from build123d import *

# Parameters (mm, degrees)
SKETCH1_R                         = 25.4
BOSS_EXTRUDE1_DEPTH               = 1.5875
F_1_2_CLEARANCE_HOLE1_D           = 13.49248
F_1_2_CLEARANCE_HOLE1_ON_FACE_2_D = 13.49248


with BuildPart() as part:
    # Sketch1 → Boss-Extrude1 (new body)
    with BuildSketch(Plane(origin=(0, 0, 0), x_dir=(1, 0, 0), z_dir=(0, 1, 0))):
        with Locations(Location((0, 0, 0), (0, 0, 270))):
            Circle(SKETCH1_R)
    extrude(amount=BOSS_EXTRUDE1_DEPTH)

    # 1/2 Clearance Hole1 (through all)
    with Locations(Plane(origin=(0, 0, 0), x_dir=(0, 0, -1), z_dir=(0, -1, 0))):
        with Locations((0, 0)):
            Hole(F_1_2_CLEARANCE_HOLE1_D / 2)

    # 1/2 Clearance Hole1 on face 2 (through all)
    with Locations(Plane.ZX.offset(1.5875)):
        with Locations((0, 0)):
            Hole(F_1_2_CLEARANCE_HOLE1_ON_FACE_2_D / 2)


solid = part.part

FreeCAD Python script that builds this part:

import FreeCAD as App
import Part
import Sketcher

V = App.Vector
Q = App.Units.Quantity

doc = App.newDocument("Part")
body = doc.addObject("PartDesign::Body", "Body")

# Sketch on XZ plane
sketch1 = body.newObject("Sketcher::SketchObject", "Sketch")
sketch1.AttachmentSupport = (doc.getObject("XZ_Plane"), [""])
sketch1.MapMode = "FlatFace"
sketch1.addGeometry(Part.Circle(V(0, 0, 0), V(0, 0, 1), 25.4), False)
sketch1.addConstraint([
    Sketcher.Constraint("Coincident", 0, 3, -1, 1),
    Sketcher.Constraint("Diameter", 0, Q("2 in")),
])
pad1 = body.newObject("PartDesign::Pad", "Pad")
pad1.Profile = sketch1
pad1.Length = Q("0.0625 in")
pad1.Reversed = True

# Sketch on XZ plane
sketch2 = body.newObject("Sketcher::SketchObject", "Sketch001")
sketch2.AttachmentSupport = (doc.getObject("XZ_Plane"), [""])
sketch2.MapMode = "FlatFace"
sketch2.addGeometry(Part.Circle(V(0, 0, 0), V(0, 0, 1), 6.74624), False)
sketch2.addConstraint([
    Sketcher.Constraint("Coincident", 0, 3, -1, 1),
    Sketcher.Constraint("Diameter", 0, Q("0.5312 in")),
])
doc.recompute()
hole = body.newObject("PartDesign::Hole", "Hole")
hole.Profile = sketch2
hole.ThreadType = "None"
hole.Diameter = Q("0.5312 in")
hole.DepthType = "ThroughAll"

# Sketch on XZ plane
sketch3 = body.newObject("Sketcher::SketchObject", "Sketch002")
sketch3.AttachmentSupport = (doc.getObject("XZ_Plane"), [""])
sketch3.MapMode = "FlatFace"
sketch3.AttachmentOffset = App.Placement(V(0, 0, -0.0625 * 25.4), App.Rotation())
sketch3.addGeometry(Part.Circle(V(0, 0, 0), V(0, 0, 1), 6.74624), False)
sketch3.addConstraint([
    Sketcher.Constraint("Coincident", 0, 3, -1, 1),
    Sketcher.Constraint("Diameter", 0, Q("0.5312 in")),
])
doc.recompute()
hole2 = body.newObject("PartDesign::Hole", "Hole001")
hole2.Profile = sketch3
hole2.ThreadType = "None"
hole2.Diameter = Q("0.5312 in")
hole2.DepthType = "ThroughAll"
hole2.Reversed = True

doc.recompute()
